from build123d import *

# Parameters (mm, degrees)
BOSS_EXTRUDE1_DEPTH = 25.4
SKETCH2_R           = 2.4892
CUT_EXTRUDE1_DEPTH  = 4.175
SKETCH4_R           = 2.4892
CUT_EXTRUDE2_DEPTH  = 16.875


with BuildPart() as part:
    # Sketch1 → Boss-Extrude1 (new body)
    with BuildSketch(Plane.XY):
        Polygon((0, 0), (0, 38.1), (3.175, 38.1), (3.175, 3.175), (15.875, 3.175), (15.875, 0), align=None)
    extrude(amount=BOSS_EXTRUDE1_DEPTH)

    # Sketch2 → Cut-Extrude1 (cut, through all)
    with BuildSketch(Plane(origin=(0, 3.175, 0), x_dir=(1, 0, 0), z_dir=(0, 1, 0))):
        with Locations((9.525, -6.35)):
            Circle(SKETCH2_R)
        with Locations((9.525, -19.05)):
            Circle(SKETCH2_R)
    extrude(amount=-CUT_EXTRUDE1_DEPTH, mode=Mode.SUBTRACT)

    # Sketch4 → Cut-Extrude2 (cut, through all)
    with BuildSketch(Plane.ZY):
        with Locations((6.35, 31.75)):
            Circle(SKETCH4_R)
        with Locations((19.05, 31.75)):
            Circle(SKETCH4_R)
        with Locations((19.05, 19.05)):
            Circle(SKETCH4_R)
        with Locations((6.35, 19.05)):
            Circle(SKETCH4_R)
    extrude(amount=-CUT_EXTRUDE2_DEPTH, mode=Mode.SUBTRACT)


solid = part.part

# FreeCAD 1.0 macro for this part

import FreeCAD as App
import Part
import Sketcher
Q = App.Units.Quantity


def add_polygon(sketch, points):
    """Adds a closed chain of lines whose ends are joined by coincident constraints."""
    first, n = sketch.GeometryCount, len(points)
    for a, b in zip(points, points[1:] + points[:1]):
        sketch.addGeometry(Part.LineSegment(App.Vector(*a, 0), App.Vector(*b, 0)), False)
    for i in range(n):
        sketch.addConstraint(Sketcher.Constraint("Coincident", first + i, 2, first + (i + 1) % n, 1))

doc = App.newDocument("Part")
params = doc.addObject("Spreadsheet::Sheet", "Params")
for row, (alias, value) in enumerate([
    ("sketch1_width", "0.5 in"),
    ("sketch1_height", "1.5 in"),
    ("sketch1_width2", "0.625 in"),
    ("pad1_length", "1 in"),
    ("sketch2_diameter", "0.196 in"),
    ("sketch3_diameter", "0.196 in"),
], start=1):
    params.set(f"A{row}", alias)
    params.set(f"B{row}", "=" + value)
    params.setAlias(f"B{row}", alias)

body = doc.addObject("PartDesign::Body", "Body")

sketch1 = body.newObject("Sketcher::SketchObject", "Sketch")
sketch1.AttachmentSupport = (doc.getObject("XY_Plane"), [""])
sketch1.MapMode = "FlatFace"
add_polygon(sketch1, [(0, 38.1), (0, 0), (15.875, 0), (15.875, 3.175), (3.175, 3.175), (3.175, 38.1)])
sketch1.addConstraint([
    Sketcher.Constraint("Vertical", 0),
    Sketcher.Constraint("Horizontal", 1),
    Sketcher.Constraint("Vertical", 2),
    Sketcher.Constraint("Horizontal", 3),
    Sketcher.Constraint("Vertical", 4),
    Sketcher.Constraint("Horizontal", 5),
    Sketcher.Constraint("Coincident", 0, 2, -1, 1),
    Sketcher.Constraint("Equal", 5, 2),
    Sketcher.Constraint("DistanceX", 3, 2, 3, 1, Q("0.5 in")),
    Sketcher.Constraint("DistanceY", 0, 2, 0, 1, Q("1.5 in")),
    Sketcher.Constraint("DistanceX", 1, 1, 1, 2, Q("0.625 in")),
])
sketch1.setExpression("Constraints[14]", "Params.sketch1_width")
sketch1.setExpression("Constraints[15]", "Params.sketch1_height")
sketch1.setExpression("Constraints[16]", "Params.sketch1_width2")
pad1 = body.newObject("PartDesign::Pad", "Pad")
pad1.Profile = sketch1
pad1.setExpression("Length", "Params.pad1_length")

sketch2 = body.newObject("Sketcher::SketchObject", "Sketch001")
sketch2.AttachmentSupport = (doc.getObject("XZ_Plane"), [""])
sketch2.MapMode = "FlatFace"
sketch2.AttachmentOffset = App.Placement(App.Vector(0, 0, -0.125 * 25.4), App.Rotation())
sketch2.addGeometry([
    Part.Circle(App.Vector(9.525, 6.35, 0), App.Vector(0, 0, 1), 2.4892),
    Part.Circle(App.Vector(9.525, 19.05, 0), App.Vector(0, 0, 1), 2.4892),
], False)
sketch2.addConstraint([
    Sketcher.Constraint("Equal", 0, 1),
    Sketcher.Constraint("Vertical", 0, 3, 1, 3),
    Sketcher.Constraint("Diameter", 0, Q("0.196 in")),
    Sketcher.Constraint("DistanceY", 0, 3, 1, 3, Q("0.5 in")),
    Sketcher.Constraint("DistanceY", -1, 1, 0, 3, Q("0.25 in")),
    Sketcher.Constraint("DistanceX", -1, 1, 0, 3, Q("0.375 in")),
])
sketch2.setExpression("Constraints[2]", "Params.sketch2_diameter")
pocket1 = body.newObject("PartDesign::Pocket", "Pocket")
pocket1.Profile = sketch2
pocket1.Type = "ThroughAll"
pocket1.Reversed = True

sketch3 = body.newObject("Sketcher::SketchObject", "Sketch002")
sketch3.AttachmentSupport = (doc.getObject("YZ_Plane"), [""])
sketch3.MapMode = "FlatFace"
sketch3.addGeometry([
    Part.Circle(App.Vector(31.75, 6.35, 0), App.Vector(0, 0, 1), 2.4892),
    Part.Circle(App.Vector(31.75, 19.05, 0), App.Vector(0, 0, 1), 2.4892),
    Part.Circle(App.Vector(19.05, 19.05, 0), App.Vector(0, 0, 1), 2.4892),
    Part.Circle(App.Vector(19.05, 6.35, 0), App.Vector(0, 0, 1), 2.4892),
], False)
sketch3.addConstraint([
    Sketcher.Constraint("Equal", 0, 1),
    Sketcher.Constraint("Equal", 1, 2),
    Sketcher.Constraint("Equal", 2, 3),
    Sketcher.Constraint("Horizontal", 1, 3, 2, 3),
    Sketcher.Constraint("Horizontal", 0, 3, 3, 3),
    Sketcher.Constraint("Vertical", 0, 3, 1, 3),
    Sketcher.Constraint("Vertical", 2, 3, 3, 3),
    Sketcher.Constraint("Diameter", 0, Q("0.196 in")),
    Sketcher.Constraint("DistanceY", 0, 3, 1, 3, Q("0.5 in")),
    Sketcher.Constraint("DistanceX", 2, 3, 1, 3, Q("0.5 in")),
    Sketcher.Constraint("DistanceX", -1, 1, 0, 3, Q("1.25 in")),
    Sketcher.Constraint("DistanceY", -1, 1, 0, 3, Q("0.25 in")),
])
sketch3.setExpression("Constraints[7]", "Params.sketch3_diameter")
pocket2 = body.newObject("PartDesign::Pocket", "Pocket001")
pocket2.Profile = sketch3
pocket2.Type = "ThroughAll"
pocket2.Reversed = True

doc.recompute()
